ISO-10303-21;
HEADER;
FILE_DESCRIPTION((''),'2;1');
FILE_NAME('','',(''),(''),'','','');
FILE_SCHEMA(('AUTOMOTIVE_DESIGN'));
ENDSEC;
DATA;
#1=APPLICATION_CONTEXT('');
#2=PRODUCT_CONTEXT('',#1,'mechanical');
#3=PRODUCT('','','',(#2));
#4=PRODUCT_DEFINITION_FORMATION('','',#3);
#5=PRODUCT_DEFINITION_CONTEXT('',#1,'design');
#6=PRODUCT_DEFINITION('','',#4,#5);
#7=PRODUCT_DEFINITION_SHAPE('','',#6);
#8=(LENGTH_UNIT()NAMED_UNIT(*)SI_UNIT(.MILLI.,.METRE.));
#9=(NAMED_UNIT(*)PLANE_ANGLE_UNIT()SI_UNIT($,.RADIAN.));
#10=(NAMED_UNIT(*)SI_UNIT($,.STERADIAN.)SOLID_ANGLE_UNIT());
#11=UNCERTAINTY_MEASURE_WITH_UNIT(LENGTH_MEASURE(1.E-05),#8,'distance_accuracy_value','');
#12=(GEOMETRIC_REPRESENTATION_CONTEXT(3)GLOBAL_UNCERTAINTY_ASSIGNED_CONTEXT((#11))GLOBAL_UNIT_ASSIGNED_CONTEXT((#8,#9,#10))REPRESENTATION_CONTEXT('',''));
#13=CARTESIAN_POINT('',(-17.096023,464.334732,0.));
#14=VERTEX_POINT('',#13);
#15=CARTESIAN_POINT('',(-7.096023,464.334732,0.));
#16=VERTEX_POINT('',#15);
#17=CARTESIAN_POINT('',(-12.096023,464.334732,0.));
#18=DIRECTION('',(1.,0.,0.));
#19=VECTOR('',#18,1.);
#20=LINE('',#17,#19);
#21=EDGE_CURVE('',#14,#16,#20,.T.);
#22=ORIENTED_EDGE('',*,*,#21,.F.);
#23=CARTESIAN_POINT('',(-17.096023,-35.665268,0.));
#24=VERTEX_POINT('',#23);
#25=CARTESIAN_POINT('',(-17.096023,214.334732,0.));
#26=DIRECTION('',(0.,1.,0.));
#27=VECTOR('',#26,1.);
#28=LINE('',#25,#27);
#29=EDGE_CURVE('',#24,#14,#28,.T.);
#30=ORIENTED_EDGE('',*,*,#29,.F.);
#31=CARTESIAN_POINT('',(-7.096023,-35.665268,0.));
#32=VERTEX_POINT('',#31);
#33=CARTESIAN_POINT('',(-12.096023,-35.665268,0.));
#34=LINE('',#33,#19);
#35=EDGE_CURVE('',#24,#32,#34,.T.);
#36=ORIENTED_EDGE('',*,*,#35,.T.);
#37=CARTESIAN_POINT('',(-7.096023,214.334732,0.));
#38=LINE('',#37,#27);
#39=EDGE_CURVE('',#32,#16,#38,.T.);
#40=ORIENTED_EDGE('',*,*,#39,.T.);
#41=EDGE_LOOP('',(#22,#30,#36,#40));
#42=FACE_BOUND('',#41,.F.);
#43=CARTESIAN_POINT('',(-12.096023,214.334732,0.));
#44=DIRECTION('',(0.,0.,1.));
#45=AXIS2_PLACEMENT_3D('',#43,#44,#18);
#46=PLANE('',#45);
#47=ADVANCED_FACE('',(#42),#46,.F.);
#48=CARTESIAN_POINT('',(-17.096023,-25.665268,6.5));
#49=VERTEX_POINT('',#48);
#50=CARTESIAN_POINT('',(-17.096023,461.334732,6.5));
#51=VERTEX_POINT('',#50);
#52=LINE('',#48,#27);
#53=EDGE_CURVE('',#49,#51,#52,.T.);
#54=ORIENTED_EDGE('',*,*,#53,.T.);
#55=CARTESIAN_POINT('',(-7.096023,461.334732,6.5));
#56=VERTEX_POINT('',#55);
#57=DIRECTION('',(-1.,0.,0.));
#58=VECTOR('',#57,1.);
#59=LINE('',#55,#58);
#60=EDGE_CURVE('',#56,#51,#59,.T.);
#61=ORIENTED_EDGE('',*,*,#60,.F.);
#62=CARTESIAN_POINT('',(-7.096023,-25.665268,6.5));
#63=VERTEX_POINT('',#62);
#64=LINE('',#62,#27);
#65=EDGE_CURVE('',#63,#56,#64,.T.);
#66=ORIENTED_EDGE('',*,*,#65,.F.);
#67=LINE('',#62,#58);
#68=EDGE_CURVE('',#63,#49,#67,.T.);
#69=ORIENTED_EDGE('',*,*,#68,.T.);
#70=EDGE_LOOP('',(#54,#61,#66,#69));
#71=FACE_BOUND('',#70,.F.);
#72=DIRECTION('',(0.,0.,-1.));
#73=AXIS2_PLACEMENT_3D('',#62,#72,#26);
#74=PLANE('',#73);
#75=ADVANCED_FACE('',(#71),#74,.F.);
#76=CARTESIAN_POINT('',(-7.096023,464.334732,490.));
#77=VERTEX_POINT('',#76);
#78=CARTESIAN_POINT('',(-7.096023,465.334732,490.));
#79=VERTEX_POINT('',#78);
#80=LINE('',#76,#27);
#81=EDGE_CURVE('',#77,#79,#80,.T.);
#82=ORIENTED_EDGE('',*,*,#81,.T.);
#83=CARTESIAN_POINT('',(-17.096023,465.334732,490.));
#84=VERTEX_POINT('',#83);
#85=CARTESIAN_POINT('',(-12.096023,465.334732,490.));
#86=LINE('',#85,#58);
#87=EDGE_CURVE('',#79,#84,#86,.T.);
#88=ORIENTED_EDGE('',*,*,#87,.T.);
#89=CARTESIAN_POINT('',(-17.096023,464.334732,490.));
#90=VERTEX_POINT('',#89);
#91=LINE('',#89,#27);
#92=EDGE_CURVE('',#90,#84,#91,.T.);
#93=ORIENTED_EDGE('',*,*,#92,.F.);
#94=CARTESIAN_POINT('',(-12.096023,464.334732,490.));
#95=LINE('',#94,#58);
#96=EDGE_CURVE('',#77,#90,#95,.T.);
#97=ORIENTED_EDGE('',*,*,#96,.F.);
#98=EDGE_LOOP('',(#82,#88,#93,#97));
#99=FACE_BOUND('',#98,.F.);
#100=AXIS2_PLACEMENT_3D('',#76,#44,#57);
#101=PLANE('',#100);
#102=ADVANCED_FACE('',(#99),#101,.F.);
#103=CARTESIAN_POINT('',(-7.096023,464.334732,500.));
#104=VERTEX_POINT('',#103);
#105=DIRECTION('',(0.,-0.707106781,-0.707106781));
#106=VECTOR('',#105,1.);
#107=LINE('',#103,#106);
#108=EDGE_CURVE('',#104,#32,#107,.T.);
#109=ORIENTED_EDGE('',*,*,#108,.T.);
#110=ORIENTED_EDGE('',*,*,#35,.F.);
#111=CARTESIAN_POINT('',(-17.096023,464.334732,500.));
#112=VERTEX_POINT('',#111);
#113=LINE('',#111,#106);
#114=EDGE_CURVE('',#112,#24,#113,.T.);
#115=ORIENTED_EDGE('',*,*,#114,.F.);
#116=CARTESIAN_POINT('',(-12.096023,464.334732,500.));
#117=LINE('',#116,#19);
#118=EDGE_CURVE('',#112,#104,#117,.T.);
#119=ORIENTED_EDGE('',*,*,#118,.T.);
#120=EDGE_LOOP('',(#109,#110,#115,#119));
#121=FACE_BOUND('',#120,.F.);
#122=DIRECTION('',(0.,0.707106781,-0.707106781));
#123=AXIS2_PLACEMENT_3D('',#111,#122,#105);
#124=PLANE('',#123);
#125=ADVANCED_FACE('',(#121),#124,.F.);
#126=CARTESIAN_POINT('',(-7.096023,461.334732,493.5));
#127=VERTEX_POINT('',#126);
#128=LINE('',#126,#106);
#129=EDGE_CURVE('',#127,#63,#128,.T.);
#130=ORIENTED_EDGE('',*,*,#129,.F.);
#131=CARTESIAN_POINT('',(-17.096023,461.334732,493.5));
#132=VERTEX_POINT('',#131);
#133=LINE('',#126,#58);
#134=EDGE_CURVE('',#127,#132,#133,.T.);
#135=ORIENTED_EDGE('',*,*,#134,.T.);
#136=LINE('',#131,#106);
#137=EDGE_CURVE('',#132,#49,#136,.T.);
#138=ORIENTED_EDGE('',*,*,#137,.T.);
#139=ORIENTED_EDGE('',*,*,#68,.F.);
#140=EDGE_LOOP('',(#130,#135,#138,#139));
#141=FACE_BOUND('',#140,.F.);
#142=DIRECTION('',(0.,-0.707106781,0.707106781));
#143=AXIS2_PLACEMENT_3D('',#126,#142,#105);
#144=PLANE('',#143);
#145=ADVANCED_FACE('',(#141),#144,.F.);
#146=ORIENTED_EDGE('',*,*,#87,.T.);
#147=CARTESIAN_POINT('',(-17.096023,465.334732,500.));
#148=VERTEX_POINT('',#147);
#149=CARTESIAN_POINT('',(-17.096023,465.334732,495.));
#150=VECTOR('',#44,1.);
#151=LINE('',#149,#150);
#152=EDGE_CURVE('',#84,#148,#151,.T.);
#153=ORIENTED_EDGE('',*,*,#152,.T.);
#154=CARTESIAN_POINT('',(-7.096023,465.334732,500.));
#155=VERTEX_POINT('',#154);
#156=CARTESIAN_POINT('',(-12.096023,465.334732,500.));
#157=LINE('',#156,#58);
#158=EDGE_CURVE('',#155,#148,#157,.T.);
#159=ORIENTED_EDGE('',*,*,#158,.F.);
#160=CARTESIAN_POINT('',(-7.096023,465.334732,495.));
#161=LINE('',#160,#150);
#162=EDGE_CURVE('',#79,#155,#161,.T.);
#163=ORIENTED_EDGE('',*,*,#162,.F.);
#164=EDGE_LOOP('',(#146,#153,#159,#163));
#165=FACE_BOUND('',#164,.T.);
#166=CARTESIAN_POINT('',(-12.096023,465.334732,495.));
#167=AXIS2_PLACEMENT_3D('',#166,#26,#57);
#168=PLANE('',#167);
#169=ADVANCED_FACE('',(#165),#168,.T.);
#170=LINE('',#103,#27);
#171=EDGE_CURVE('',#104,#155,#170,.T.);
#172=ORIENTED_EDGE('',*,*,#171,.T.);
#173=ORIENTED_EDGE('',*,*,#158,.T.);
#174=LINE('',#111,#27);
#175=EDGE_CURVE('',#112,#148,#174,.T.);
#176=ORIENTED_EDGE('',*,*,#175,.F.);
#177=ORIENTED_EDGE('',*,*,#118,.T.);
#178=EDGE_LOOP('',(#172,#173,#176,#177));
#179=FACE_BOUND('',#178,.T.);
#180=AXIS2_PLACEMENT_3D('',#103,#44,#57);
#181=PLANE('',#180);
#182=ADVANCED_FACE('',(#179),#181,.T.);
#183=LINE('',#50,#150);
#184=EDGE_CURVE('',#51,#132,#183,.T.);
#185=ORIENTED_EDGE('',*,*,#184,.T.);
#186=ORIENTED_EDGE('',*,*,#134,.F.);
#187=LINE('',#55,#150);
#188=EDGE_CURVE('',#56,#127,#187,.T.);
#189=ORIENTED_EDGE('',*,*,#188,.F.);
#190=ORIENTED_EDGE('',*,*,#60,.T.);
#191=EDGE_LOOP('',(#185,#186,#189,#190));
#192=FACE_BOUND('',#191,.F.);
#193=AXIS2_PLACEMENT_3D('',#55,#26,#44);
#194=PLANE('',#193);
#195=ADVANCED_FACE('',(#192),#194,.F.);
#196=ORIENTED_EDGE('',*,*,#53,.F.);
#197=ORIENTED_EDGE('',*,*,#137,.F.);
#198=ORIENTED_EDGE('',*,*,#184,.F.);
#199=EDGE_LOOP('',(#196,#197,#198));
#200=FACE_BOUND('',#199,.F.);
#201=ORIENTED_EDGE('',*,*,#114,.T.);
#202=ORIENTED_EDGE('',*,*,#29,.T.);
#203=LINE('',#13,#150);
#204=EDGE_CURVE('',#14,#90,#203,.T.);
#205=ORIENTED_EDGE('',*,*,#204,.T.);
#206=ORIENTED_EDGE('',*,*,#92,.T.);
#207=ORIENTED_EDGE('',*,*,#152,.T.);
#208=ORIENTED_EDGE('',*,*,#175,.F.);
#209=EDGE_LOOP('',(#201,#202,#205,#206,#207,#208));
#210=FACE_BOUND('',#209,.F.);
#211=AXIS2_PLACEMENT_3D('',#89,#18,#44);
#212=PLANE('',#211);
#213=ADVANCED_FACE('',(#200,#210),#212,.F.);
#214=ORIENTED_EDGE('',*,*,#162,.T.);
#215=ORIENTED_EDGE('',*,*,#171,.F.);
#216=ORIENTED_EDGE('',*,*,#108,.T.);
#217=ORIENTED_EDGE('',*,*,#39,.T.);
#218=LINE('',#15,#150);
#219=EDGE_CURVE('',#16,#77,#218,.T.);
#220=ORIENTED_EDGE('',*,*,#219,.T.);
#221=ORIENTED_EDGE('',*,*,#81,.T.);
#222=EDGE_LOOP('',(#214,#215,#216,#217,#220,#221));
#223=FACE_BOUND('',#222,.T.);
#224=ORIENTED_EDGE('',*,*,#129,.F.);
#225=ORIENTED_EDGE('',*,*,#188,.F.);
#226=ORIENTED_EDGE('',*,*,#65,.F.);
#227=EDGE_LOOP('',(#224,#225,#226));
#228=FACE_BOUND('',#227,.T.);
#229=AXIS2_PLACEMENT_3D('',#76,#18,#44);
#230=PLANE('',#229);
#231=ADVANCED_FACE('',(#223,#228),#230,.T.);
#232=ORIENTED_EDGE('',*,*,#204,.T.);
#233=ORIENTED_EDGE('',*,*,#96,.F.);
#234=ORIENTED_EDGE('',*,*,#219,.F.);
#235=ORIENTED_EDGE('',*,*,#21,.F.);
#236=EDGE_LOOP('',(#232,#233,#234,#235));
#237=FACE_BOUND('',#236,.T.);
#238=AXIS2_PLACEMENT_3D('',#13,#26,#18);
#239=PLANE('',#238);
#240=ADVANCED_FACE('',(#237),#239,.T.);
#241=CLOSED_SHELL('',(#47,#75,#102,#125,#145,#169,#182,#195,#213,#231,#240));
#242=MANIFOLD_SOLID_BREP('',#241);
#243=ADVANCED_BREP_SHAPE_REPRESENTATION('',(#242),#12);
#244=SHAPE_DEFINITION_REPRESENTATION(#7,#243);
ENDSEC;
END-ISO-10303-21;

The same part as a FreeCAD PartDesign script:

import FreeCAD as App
import Part
import Sketcher

V = App.Vector
Q = App.Units.Quantity


def add_polygon(sketch, points):
    """Adds a closed chain of lines whose ends are joined by coincident constraints."""
    first, n = sketch.GeometryCount, len(points)
    for a, b in zip(points, points[1:] + points[:1]):
        sketch.addGeometry(Part.LineSegment(App.Vector(*a, 0), App.Vector(*b, 0)), False)
    for i in range(n):
        sketch.addConstraint(Sketcher.Constraint("Coincident", first + i, 2, first + (i + 1) % n, 1))

doc = App.newDocument("Part")
body = doc.addObject("PartDesign::Body", "Body")

# Sketch on XY plane
sketch1 = doc.addObject("Sketcher::SketchObject", "Sketch")
body.addObject(sketch1)
sketch1.AttachmentSupport = (doc.XY_Plane, [""])
sketch1.MapMode = "FlatFace"
add_polygon(sketch1, [(-17, 464), (-17, -36), (-7, -36), (-7, 464)])  # lines 0-3
sketch1.addConstraint([
    Sketcher.Constraint("Vertical", 0),
    Sketcher.Constraint("Horizontal", 1),
    Sketcher.Constraint("Vertical", 2),
    Sketcher.Constraint("Horizontal", 3),
    Sketcher.Constraint("DistanceX", 1, 1, 1, 2, Q("10 mm")),
    Sketcher.Constraint("DistanceY", 0, 2, 0, 1, Q("500 mm")),
    Sketcher.Constraint("DistanceY", -1, 1, 2, 2, Q("464.334732 mm")),
    Sketcher.Constraint("DistanceX", 0, 2, -1, 1, Q("17.096023 mm")),
])
pad1 = doc.addObject("PartDesign::Pad", "Pad")
body.addObject(pad1)
pad1.Profile = sketch1
pad1.Length = 500

# Sketch on YZ plane
sketch2 = doc.addObject("Sketcher::SketchObject", "Sketch001")
body.addObject(sketch2)
sketch2.AttachmentSupport = (doc.YZ_Plane, [""])
sketch2.MapMode = "FlatFace"
sketch2.AttachmentOffset = App.Placement(V(0, 0, -17.096023), App.Rotation())
add_polygon(sketch2, [(-36, 500), (464, 500), (-36, 0)])  # lines 0-2
sketch2.addConstraint([
    Sketcher.Constraint("Horizontal", 0),
    Sketcher.Constraint("Vertical", 2),
    Sketcher.Constraint("PointOnObject", 1, 2, -1),
    Sketcher.Constraint("Equal", 0, 2),
    Sketcher.Constraint("DistanceX", 0, 1, 0, 2, Q("500 mm")),
    Sketcher.Constraint("DistanceX", -1, 1, 0, 2, Q("464.334732 mm")),
])
pocket1 = doc.addObject("PartDesign::Pocket", "Pocket")
body.addObject(pocket1)
pocket1.Profile = sketch2
pocket1.Length = 10
pocket1.Reversed = True

# Sketch on YZ plane
sketch3 = doc.addObject("Sketcher::SketchObject", "Sketch002")
body.addObject(sketch3)
sketch3.AttachmentSupport = (doc.YZ_Plane, [""])
sketch3.MapMode = "FlatFace"
sketch3.AttachmentOffset = App.Placement(V(0, 0, -7.096023), App.Rotation())
add_polygon(sketch3, [(461, 494), (-26, 6), (461, 6)])  # lines 0-2
sketch3.addConstraint([
    Sketcher.Constraint("Horizontal", 1),
    Sketcher.Constraint("Vertical", 2),
    Sketcher.Constraint("Equal", 1, 2),
    Sketcher.Constraint("DistanceX", 1, 1, 1, 2, Q("487 mm")),
    Sketcher.Constraint("DistanceY", -1, 1, 0, 2, Q("6.5 mm")),
    Sketcher.Constraint("DistanceX", 0, 2, -1, 1, Q("25.665268 mm")),
])
pocket2 = doc.addObject("PartDesign::Pocket", "Pocket001")
body.addObject(pocket2)
pocket2.Profile = sketch3
pocket2.Length = 10

# Sketch on XZ plane
sketch4 = doc.addObject("Sketcher::SketchObject", "Sketch003")
body.addObject(sketch4)
sketch4.AttachmentSupport = (doc.XZ_Plane, [""])
sketch4.MapMode = "FlatFace"
sketch4.AttachmentOffset = App.Placement(V(0, 0, -464.334732), App.Rotation())
add_polygon(sketch4, [(-7, 500), (-7, 490), (-17, 490), (-17, 500)])  # lines 0-3
sketch4.addConstraint([
    Sketcher.Constraint("Vertical", 0),
    Sketcher.Constraint("Horizontal", 1),
    Sketcher.Constraint("Vertical", 2),
    Sketcher.Constraint("Horizontal", 3),
    Sketcher.Constraint("Equal", 3, 0),
    Sketcher.Constraint("DistanceX", 1, 2, 1, 1, Q("10 mm")),
    Sketcher.Constraint("DistanceY", -1, 1, 0, 2, Q("490 mm")),
    Sketcher.Constraint("DistanceX", 0, 2, -1, 1, Q("7.096023 mm")),
])
pad2 = doc.addObject("PartDesign::Pad", "Pad001")
body.addObject(pad2)
pad2.Profile = sketch4
pad2.Length = 1
pad2.Reversed = True

doc.recompute()
